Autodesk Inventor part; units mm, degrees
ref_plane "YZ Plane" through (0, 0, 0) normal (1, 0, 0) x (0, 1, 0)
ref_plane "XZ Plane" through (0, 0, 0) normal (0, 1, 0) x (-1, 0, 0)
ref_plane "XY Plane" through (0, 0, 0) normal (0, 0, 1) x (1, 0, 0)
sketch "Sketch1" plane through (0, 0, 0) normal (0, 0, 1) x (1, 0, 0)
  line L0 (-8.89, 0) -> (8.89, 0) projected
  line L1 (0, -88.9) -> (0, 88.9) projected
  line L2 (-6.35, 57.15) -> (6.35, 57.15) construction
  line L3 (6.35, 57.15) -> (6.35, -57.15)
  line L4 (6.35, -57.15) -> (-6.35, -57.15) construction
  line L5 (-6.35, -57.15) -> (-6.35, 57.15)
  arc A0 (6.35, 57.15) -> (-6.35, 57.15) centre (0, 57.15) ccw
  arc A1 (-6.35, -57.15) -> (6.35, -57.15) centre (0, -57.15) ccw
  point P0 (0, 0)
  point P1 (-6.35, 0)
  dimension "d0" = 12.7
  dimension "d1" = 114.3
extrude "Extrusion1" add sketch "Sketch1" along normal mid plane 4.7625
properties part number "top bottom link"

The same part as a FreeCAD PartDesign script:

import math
import FreeCAD as App
import Part
import Sketcher
from FreeCAD import Vector
Q = App.Units.Quantity

doc = App.newDocument("Part")
params = doc.addObject("Spreadsheet::Sheet", "Params")
for row, (alias, value) in enumerate([
    ("sketch1_radius", "0.25 in"),
    ("sketch1_height", "4.5 in"),
    ("pad1_length", "0.1875 in"),
], start=1):
    params.set(f"A{row}", alias)
    params.set(f"B{row}", "=" + value)
    params.setAlias(f"B{row}", alias)

body = doc.addObject("PartDesign::Body", "Body")

# Sketch on XY plane
sketch1 = doc.addObject("Sketcher::SketchObject", "Sketch")
body.addObject(sketch1)
sketch1.AttachmentSupport = (doc.XY_Plane, [""])
sketch1.MapMode = "FlatFace"
sketch1.addGeometry([
    Part.LineSegment(Vector(-6, 57, 0), Vector(-6, -57, 0)),
    Part.ArcOfCircle(Part.Circle(Vector(0, -57, 0), Vector(0, 0, 1), 6), math.radians(180), math.radians(360)),
    Part.LineSegment(Vector(6, -57, 0), Vector(6, 57, 0)),
    Part.ArcOfCircle(Part.Circle(Vector(0, 57, 0), Vector(0, 0, 1), 6), math.radians(0), math.radians(180)),
], False)
sketch1.addConstraint([
    Sketcher.Constraint("Tangent", 0, 2, 1, 1),
    Sketcher.Constraint("Tangent", 1, 2, 2, 1),
    Sketcher.Constraint("Tangent", 2, 2, 3, 1),
    Sketcher.Constraint("Tangent", 3, 2, 0, 1),
    Sketcher.Constraint("Vertical", 0),
    Sketcher.Constraint("Vertical", 2),
    Sketcher.Constraint("Symmetric", 1, 3, 3, 3, -1, 1),
    Sketcher.Constraint("Radius", 1, Q("0.25 in")),
    Sketcher.Constraint("DistanceY", 0, 2, 0, 1, Q("4.5 in")),
])
sketch1.setExpression("Constraints[7]", "Params.sketch1_radius")
sketch1.setExpression("Constraints[8]", "Params.sketch1_height")
pad1 = doc.addObject("PartDesign::Pad", "Pad")
body.addObject(pad1)
pad1.Profile = sketch1
pad1.setExpression("Length", "Params.pad1_length")
pad1.Midplane = True

doc.recompute()
